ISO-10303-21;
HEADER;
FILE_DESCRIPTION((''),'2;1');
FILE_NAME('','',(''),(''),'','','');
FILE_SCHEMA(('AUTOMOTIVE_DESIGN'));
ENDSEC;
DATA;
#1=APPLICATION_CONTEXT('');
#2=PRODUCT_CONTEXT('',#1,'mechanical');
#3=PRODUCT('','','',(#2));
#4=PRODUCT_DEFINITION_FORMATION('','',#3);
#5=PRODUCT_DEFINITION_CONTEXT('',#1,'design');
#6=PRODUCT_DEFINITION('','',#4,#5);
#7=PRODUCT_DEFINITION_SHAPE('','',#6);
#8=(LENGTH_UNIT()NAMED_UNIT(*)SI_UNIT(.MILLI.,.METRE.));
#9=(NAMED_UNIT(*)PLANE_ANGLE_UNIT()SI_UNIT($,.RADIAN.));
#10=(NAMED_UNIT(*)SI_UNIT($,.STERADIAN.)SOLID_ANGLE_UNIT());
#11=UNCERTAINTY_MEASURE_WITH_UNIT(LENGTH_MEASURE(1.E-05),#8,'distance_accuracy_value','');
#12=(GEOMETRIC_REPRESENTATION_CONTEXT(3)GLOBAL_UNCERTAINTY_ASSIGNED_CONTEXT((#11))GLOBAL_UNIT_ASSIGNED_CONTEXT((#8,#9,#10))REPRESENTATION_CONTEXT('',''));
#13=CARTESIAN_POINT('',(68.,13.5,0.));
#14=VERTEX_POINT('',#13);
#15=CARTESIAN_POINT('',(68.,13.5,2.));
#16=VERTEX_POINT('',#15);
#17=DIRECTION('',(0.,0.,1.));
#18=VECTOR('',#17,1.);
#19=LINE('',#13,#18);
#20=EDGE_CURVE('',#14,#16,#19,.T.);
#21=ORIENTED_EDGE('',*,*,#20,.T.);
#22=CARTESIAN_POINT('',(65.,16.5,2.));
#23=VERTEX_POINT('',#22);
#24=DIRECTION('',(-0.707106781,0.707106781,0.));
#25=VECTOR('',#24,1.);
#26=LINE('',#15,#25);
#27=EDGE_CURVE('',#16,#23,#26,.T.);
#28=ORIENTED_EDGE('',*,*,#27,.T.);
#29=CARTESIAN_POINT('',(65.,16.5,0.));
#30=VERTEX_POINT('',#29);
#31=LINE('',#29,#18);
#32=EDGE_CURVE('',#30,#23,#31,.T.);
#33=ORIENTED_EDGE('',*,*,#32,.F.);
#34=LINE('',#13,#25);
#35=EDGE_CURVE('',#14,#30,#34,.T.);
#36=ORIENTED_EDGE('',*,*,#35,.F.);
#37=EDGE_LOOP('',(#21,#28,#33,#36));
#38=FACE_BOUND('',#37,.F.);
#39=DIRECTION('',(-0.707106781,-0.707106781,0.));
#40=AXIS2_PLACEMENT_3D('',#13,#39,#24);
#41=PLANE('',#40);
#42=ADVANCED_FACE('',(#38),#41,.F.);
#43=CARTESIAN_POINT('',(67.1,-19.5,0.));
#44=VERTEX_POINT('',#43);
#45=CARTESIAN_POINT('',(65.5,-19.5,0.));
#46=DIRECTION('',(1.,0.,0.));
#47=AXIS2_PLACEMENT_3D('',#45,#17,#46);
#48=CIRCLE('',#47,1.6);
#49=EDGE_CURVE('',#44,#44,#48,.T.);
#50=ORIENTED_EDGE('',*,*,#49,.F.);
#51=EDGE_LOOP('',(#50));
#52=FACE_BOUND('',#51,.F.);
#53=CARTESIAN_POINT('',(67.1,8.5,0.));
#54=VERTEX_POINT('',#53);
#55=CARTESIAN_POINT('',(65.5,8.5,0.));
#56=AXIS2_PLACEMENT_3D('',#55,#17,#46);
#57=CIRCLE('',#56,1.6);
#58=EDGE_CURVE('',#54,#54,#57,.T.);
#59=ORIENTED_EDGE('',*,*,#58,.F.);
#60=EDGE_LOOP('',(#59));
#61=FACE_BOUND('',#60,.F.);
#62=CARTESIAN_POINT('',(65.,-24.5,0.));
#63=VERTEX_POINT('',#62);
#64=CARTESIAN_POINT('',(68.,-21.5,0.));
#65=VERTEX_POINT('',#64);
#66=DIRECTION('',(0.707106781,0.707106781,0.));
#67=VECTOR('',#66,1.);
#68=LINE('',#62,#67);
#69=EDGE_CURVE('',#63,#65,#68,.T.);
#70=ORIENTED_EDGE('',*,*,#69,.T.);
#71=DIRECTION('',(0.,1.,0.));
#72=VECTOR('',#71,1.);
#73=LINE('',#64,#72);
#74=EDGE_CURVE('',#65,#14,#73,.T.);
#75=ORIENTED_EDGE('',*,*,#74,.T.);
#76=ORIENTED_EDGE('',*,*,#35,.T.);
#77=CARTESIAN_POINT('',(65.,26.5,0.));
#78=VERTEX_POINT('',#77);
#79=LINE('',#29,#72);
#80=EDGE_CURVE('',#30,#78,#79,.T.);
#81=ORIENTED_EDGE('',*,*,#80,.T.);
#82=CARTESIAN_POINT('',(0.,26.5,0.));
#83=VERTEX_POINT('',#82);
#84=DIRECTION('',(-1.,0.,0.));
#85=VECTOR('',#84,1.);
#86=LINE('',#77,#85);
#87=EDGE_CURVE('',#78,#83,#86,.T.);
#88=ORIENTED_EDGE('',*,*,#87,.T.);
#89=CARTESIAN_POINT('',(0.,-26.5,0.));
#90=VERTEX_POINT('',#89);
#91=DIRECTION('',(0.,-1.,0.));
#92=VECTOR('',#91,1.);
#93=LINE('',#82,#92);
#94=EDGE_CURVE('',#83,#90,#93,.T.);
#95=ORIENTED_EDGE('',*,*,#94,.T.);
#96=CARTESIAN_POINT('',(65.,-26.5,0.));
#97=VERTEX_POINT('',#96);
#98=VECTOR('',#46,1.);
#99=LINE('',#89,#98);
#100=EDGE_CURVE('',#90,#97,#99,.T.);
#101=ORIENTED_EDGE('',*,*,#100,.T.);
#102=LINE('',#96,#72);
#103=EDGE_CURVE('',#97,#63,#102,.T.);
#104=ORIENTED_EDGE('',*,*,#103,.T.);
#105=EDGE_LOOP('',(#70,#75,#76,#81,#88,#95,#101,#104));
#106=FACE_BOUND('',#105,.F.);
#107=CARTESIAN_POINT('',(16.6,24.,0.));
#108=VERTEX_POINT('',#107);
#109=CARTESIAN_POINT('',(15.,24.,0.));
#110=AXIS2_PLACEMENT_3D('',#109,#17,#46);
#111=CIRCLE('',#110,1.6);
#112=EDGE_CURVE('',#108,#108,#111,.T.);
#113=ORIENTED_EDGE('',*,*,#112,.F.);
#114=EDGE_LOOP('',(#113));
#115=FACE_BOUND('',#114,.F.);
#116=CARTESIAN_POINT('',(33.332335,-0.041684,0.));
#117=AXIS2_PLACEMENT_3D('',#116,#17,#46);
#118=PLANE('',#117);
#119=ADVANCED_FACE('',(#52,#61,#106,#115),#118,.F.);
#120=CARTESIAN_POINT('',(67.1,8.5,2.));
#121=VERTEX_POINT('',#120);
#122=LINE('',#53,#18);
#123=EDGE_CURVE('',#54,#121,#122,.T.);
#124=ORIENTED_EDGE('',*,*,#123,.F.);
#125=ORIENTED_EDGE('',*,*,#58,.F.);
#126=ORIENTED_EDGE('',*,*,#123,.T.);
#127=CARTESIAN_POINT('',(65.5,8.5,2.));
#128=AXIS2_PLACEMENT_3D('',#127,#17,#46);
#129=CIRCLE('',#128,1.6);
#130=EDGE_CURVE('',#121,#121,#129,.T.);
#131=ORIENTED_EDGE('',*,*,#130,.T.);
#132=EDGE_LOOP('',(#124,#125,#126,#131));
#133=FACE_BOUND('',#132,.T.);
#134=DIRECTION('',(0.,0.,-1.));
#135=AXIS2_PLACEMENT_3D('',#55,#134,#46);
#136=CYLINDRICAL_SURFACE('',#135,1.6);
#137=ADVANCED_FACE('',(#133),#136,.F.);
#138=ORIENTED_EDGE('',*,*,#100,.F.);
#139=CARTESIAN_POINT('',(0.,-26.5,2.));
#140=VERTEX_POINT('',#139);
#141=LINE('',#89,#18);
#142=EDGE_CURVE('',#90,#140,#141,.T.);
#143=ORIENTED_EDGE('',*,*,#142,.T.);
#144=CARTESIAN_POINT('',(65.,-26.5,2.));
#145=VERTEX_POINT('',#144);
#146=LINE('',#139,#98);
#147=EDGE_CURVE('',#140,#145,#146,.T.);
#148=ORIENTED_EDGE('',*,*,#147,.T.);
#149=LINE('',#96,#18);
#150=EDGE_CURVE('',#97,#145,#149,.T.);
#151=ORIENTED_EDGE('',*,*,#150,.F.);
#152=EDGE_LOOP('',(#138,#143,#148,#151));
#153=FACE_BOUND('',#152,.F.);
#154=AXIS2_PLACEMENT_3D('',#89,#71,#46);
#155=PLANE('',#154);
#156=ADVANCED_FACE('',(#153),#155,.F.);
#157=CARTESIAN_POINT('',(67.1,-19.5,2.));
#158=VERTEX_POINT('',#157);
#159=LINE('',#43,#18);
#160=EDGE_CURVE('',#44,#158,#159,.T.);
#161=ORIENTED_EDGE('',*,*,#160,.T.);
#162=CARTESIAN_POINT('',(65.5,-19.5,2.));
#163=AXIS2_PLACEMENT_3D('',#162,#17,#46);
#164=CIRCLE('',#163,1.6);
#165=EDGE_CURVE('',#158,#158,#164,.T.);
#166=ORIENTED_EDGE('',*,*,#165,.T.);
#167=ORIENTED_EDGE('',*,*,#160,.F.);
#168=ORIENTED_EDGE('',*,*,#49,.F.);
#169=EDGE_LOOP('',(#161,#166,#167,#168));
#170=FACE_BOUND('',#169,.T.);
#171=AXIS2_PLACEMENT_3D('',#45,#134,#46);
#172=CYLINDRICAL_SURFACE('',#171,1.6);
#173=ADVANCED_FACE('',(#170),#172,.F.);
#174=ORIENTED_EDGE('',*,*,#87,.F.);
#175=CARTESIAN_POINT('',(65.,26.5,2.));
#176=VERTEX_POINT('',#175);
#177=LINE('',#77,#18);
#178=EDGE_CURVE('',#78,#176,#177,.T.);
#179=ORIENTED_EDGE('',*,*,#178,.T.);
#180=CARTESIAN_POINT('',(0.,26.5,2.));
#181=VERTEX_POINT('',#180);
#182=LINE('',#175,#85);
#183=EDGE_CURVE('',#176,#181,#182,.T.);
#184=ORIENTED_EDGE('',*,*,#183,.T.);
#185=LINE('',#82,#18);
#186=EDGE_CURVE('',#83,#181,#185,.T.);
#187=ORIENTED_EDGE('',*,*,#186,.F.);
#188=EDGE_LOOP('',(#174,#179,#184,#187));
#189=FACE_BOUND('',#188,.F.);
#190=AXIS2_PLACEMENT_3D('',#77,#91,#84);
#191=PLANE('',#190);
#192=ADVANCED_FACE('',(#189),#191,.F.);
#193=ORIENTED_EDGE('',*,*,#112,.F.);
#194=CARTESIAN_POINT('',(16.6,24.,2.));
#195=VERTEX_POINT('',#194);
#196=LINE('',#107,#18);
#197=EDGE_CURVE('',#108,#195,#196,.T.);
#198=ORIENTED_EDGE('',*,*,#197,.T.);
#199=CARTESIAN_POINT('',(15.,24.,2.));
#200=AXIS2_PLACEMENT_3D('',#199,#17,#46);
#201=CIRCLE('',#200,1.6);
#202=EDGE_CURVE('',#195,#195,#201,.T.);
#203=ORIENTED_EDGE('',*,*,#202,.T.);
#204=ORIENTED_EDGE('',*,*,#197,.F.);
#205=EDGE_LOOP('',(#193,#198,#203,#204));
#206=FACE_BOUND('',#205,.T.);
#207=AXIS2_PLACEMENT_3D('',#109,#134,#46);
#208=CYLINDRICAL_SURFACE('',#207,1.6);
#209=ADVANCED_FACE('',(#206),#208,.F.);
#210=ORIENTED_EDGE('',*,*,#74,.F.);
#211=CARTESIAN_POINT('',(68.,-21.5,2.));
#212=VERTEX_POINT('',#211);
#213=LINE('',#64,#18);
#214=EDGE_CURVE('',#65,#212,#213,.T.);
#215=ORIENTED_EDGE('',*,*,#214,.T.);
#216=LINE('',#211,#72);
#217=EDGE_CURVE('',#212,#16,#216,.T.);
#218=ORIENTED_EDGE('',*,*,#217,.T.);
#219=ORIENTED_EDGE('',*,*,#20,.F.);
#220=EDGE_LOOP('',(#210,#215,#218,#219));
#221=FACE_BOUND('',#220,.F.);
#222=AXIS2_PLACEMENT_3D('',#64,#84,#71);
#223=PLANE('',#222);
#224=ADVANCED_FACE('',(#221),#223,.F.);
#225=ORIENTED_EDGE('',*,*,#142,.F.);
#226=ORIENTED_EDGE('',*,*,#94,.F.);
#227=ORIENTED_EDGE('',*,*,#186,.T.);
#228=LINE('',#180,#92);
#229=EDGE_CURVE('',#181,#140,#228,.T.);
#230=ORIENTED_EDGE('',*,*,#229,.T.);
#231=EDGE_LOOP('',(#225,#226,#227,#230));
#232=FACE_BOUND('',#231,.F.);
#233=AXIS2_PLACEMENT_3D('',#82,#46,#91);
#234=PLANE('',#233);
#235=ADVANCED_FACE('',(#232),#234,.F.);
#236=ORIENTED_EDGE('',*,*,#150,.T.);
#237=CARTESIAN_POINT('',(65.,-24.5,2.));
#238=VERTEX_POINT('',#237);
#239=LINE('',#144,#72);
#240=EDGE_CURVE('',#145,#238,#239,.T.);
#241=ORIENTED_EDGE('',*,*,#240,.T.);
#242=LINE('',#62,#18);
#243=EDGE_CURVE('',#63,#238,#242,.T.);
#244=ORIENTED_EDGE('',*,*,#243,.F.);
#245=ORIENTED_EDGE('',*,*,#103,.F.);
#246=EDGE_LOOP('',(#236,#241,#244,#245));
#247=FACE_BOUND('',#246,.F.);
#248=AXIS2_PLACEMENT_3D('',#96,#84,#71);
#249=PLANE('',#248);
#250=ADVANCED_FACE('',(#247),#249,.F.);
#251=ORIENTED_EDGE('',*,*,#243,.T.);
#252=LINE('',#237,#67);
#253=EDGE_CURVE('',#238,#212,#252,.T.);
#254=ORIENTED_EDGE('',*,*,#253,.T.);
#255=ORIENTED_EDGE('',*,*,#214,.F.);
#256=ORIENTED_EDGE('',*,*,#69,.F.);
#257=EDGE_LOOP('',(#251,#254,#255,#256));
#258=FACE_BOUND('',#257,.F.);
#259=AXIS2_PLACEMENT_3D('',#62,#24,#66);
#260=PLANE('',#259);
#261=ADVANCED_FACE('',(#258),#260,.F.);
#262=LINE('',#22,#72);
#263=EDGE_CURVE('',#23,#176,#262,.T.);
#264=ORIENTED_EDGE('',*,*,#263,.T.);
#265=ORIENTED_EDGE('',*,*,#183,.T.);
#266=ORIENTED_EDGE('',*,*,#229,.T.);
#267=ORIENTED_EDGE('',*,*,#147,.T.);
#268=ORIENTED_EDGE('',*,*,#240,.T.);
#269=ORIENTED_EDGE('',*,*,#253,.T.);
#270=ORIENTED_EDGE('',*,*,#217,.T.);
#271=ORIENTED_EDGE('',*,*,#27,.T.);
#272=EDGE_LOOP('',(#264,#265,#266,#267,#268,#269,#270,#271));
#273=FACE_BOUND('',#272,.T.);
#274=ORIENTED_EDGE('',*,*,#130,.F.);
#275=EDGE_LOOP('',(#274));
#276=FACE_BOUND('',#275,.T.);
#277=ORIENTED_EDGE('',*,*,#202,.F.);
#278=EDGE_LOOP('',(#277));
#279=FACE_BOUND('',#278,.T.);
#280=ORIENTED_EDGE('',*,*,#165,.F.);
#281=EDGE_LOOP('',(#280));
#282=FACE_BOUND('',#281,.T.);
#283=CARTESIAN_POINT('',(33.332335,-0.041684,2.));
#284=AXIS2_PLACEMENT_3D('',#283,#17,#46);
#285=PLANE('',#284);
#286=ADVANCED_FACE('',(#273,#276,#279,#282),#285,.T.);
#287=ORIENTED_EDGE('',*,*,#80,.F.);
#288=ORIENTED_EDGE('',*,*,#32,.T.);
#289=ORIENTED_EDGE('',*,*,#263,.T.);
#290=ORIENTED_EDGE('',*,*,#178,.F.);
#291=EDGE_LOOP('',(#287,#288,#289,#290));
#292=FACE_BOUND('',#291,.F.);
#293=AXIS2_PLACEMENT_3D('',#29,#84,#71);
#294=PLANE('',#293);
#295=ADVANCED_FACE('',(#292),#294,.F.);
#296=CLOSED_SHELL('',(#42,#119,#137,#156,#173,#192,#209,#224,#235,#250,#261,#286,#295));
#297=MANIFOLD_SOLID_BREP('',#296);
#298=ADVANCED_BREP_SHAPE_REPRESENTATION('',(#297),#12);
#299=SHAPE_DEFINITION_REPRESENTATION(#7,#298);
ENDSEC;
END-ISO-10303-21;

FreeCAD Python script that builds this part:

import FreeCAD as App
import Part
import Sketcher
Q = App.Units.Quantity


def add_polygon(sketch, points):
    """Adds a closed chain of lines whose ends are joined by coincident constraints."""
    first, n = sketch.GeometryCount, len(points)
    for a, b in zip(points, points[1:] + points[:1]):
        sketch.addGeometry(Part.LineSegment(App.Vector(*a, 0), App.Vector(*b, 0)), False)
    for i in range(n):
        sketch.addConstraint(Sketcher.Constraint("Coincident", first + i, 2, first + (i + 1) % n, 1))

doc = App.newDocument("Part")
body = doc.addObject("PartDesign::Body", "Body")

# Sketch on XY plane
sketch1 = body.newObject("Sketcher::SketchObject", "Sketch")
sketch1.AttachmentSupport = (doc.getObject("XY_Plane"), [""])
sketch1.MapMode = "FlatFace"
add_polygon(sketch1, [(65, 26.5), (0, 26.5), (0, -26.5), (65, -26.5), (65, -24.5), (68, -21.5), (68, 13.5), (65, 16.5)])  # lines 0-7
sketch1.addGeometry(Part.Circle(App.Vector(65.5, -19.5, 0), App.Vector(0, 0, 1), 1.6), False)  # 8
sketch1.addGeometry(Part.Circle(App.Vector(15, 24, 0), App.Vector(0, 0, 1), 1.6), False)  # 9
sketch1.addGeometry(Part.Circle(App.Vector(65.5, 8.5, 0), App.Vector(0, 0, 1), 1.6), False)  # 10
sketch1.addConstraint(Sketcher.Constraint("Horizontal", 0))
sketch1.addConstraint(Sketcher.Constraint("Vertical", 1))
sketch1.addConstraint(Sketcher.Constraint("Horizontal", 2))
sketch1.addConstraint(Sketcher.Constraint("Vertical", 3))
sketch1.addConstraint(Sketcher.Constraint("Vertical", 5))
sketch1.addConstraint(Sketcher.Constraint("Vertical", 7))
sketch1.addConstraint(Sketcher.Constraint("Equal", 8, 9))
sketch1.addConstraint(Sketcher.Constraint("Equal", 9, 10))
sketch1.addConstraint(Sketcher.Constraint("Symmetric", 0, 2, 1, 2, -1, 1))
sketch1.addConstraint(Sketcher.Constraint("Perpendicular", 4, 6))
sketch1.addConstraint(Sketcher.Constraint("Vertical", 8, 3, 10, 3))
sketch1.addConstraint(Sketcher.Constraint("Vertical", 3, 2, 6, 2))
sketch1.addConstraint(Sketcher.Constraint("Equal", 4, 6))
sketch1.addConstraint(Sketcher.Constraint("Diameter", 8, Q("3.2 mm")))
sketch1.addConstraint(Sketcher.Constraint("DistanceX", 0, 2, 0, 1, Q("65 mm")))
sketch1.addConstraint(Sketcher.Constraint("DistanceY", 1, 2, 1, 1, Q("53 mm")))
sketch1.addConstraint(Sketcher.Constraint("DistanceY", 3, 1, 3, 2, Q("2 mm")))
sketch1.addConstraint(Sketcher.Constraint("DistanceY", 5, 1, 5, 2, Q("35 mm")))
sketch1.addConstraint(Sketcher.Constraint("DistanceY", 7, 1, 7, 2, Q("10 mm")))
sketch1.addConstraint(Sketcher.Constraint("DistanceX", -1, 1, 9, 3, Q("15 mm")))
sketch1.addConstraint(Sketcher.Constraint("DistanceY", -1, 1, 9, 3, Q("24 mm")))
sketch1.addConstraint(Sketcher.Constraint("DistanceY", 8, 3, 10, 3, Q("28 mm")))
sketch1.addConstraint(Sketcher.Constraint("DistanceY", 10, 3, 0, 2, Q("18 mm")))
sketch1.addConstraint(Sketcher.Constraint("DistanceX", -1, 1, 8, 3, Q("65.5 mm")))
pad1 = body.newObject("PartDesign::Pad", "Pad")
pad1.Profile = sketch1
pad1.Length = 2

doc.recompute()
